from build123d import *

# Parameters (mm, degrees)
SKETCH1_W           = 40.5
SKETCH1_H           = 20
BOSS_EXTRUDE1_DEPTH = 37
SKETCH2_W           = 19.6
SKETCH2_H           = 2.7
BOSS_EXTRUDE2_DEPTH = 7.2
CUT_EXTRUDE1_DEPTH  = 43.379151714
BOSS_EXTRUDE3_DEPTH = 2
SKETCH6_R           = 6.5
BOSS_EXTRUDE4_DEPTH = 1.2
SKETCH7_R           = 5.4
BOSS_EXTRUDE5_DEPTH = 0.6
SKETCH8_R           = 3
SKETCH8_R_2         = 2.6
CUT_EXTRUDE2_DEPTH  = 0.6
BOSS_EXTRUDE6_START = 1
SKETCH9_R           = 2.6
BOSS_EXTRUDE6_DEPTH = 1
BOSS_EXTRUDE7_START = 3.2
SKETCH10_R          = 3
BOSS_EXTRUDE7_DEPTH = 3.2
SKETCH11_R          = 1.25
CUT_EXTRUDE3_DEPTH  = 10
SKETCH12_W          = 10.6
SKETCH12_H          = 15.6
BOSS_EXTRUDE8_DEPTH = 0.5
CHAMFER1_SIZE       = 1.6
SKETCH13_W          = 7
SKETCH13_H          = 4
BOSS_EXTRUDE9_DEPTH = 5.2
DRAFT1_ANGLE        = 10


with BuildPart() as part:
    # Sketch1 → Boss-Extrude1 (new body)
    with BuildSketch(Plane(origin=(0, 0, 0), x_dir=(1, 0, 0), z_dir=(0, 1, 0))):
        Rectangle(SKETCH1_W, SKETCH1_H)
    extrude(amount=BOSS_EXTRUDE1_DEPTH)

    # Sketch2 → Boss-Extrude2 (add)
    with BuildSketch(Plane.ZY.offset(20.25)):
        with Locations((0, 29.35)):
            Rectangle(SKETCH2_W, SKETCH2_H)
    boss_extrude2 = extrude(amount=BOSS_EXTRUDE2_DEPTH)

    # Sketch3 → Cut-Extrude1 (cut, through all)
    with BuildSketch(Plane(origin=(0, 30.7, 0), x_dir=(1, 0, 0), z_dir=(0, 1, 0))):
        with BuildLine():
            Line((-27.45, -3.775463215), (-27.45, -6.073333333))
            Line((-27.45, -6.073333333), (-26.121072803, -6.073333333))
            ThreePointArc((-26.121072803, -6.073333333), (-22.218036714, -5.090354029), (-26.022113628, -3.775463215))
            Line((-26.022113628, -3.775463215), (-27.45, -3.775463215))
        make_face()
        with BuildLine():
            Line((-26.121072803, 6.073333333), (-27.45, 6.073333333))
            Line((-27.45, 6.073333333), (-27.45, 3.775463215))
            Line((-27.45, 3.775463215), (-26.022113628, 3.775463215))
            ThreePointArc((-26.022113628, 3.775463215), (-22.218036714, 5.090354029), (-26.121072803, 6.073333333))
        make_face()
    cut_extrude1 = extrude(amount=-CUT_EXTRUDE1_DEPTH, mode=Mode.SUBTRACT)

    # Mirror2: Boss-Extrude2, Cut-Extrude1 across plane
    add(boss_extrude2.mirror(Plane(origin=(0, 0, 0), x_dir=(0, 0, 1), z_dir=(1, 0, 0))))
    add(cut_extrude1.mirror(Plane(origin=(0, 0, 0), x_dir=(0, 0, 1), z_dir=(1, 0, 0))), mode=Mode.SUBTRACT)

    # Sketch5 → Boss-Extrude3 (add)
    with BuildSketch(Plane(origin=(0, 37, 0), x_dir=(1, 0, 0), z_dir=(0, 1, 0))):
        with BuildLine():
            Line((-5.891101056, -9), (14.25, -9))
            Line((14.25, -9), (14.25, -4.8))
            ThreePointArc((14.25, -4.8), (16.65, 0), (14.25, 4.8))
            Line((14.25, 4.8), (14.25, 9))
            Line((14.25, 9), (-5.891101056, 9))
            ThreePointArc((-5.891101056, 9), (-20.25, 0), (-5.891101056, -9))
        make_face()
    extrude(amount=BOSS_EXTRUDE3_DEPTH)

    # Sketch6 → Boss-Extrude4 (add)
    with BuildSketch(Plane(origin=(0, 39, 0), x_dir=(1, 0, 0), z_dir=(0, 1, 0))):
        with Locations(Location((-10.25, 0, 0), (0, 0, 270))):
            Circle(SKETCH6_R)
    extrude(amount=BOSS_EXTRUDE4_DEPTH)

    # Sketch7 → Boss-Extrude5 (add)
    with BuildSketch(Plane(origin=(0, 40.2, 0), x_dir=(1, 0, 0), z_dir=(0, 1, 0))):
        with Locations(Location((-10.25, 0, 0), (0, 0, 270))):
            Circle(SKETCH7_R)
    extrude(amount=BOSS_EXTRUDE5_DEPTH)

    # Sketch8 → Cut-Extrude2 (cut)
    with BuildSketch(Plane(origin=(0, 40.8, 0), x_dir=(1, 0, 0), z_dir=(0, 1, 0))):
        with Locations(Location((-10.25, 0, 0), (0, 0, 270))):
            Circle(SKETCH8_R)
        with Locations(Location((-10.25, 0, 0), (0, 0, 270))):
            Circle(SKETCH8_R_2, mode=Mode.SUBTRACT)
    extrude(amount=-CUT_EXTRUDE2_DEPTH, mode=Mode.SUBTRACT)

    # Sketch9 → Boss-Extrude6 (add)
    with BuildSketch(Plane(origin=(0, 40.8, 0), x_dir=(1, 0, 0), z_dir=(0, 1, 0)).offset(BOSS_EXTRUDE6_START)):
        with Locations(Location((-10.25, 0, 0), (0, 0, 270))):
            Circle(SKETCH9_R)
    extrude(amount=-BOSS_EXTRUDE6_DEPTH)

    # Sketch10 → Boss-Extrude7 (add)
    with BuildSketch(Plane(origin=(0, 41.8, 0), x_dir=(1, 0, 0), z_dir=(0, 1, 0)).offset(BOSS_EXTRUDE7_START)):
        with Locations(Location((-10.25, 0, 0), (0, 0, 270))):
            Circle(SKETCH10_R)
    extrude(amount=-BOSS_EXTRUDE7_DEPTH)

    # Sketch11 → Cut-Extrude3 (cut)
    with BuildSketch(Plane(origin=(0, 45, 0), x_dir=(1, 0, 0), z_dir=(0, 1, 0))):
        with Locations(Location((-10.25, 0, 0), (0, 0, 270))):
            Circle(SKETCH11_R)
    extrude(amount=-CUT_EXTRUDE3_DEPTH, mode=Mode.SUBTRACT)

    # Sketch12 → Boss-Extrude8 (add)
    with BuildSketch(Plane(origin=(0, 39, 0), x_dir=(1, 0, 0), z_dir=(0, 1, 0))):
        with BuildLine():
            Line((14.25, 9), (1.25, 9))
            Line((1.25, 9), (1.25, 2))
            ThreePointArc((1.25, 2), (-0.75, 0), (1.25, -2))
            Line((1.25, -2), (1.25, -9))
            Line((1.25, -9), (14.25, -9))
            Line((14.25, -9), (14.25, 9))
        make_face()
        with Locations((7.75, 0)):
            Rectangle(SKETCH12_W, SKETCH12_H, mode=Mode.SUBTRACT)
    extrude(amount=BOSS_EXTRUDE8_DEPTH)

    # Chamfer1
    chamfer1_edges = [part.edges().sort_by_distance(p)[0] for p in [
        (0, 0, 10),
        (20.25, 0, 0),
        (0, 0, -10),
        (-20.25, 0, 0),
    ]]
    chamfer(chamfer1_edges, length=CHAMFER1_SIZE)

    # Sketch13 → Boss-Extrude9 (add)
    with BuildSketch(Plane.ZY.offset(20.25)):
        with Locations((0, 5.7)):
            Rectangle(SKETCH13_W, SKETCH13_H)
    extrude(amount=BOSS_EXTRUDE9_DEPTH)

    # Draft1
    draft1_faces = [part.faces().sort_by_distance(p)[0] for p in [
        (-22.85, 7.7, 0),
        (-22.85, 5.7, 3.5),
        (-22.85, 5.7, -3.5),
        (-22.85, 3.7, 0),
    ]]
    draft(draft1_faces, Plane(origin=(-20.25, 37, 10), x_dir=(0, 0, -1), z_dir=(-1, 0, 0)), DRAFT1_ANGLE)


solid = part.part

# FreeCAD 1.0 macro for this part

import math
import FreeCAD as App
import Part
import Sketcher


def edges_at(feature, points):
    """Names of the edges that pass closest to the given points."""
    edges = feature.Shape.Edges
    near = lambda p: min(range(len(edges)), key=lambda i: edges[i].distToShape(Part.Vertex(*p))[0])
    return sorted({f"Edge{near(p) + 1}" for p in points})


def faces_at(feature, points):
    """Names of the faces that lie closest to the given points."""
    faces = feature.Shape.Faces
    near = lambda p: min(range(len(faces)), key=lambda i: faces[i].distToShape(Part.Vertex(*p))[0])
    return sorted({f"Face{near(p) + 1}" for p in points})

doc = App.newDocument("Part")
params = doc.addObject("Spreadsheet::Sheet", "Params")
for row, (alias, value) in enumerate([
    ("sketch1_height", "20 mm"),
    ("sketch1_width", "40.5 mm"),
    ("pad1_length", "37 mm"),
    ("sketch2_width", "2.7 mm"),
    ("sketch2_height", "19.6 mm"),
    ("pad2_length", "7.2 mm"),
    ("sketch3_radius", "2.1 mm"),
    ("sketch4_radius", "6 mm"),
    ("sketch4_radius2", "10 mm"),
    ("sketch4_height", "4.2 mm"),
    ("pad3_length", "2 mm"),
    ("sketch5_diameter", "13 mm"),
    ("pad4_length", "1.2 mm"),
    ("sketch6_diameter", "10.8 mm"),
    ("pad5_length", "0.6 mm"),
    ("sketch7_diameter", "6 mm"),
    ("sketch7_diameter2", "5.2 mm"),
    ("pocket2_length", "0.6 mm"),
    ("sketch8_diameter", "5.2 mm"),
    ("pad6_length", "1 mm"),
    ("sketch9_diameter", "6 mm"),
    ("pad7_length", "3.2 mm"),
    ("sketch10_diameter", "2.5 mm"),
    ("pocket3_length", "10 mm"),
    ("sketch11_radius", "2 mm"),
    ("sketch11_width", "13 mm"),
    ("sketch11_height", "7 mm"),
    ("sketch11_width2", "10.6 mm"),
    ("sketch11_height2", "15.6 mm"),
    ("pad8_length", "0.5 mm"),
    ("chamfer_size", "1.6 mm"),
    ("sketch12_width", "4 mm"),
    ("sketch12_height", "7 mm"),
    ("pad9_length", "5.2 mm"),
    ("draft_angle", "10 deg"),
], start=1):
    params.set(f"A{row}", alias)
    params.set(f"B{row}", "=" + value)
    params.setAlias(f"B{row}", alias)

body = doc.addObject("PartDesign::Body", "Body")

# Sketch on XZ plane
sketch1 = body.newObject("Sketcher::SketchObject", "Sketch")
sketch1.AttachmentSupport = (doc.getObject("XZ_Plane"), [""])
sketch1.MapMode = "FlatFace"
sketch1.addGeometry([
    Part.LineSegment(App.Vector(-20, -10, 0), App.Vector(-20, 10, 0)),
    Part.LineSegment(App.Vector(-20, 10, 0), App.Vector(20, 10, 0)),
    Part.LineSegment(App.Vector(20, 10, 0), App.Vector(20, -10, 0)),
    Part.LineSegment(App.Vector(20, -10, 0), App.Vector(-20, -10, 0)),
], False)
sketch1.addConstraint([
    Sketcher.Constraint("Coincident", 0, 2, 1, 1),
    Sketcher.Constraint("Coincident", 1, 2, 2, 1),
    Sketcher.Constraint("Coincident", 2, 2, 3, 1),
    Sketcher.Constraint("Coincident", 3, 2, 0, 1),
    Sketcher.Constraint("Vertical", 0),
    Sketcher.Constraint("Horizontal", 1),
    Sketcher.Constraint("Vertical", 2),
    Sketcher.Constraint("Horizontal", 3),
    Sketcher.Constraint("Symmetric", 0, 2, 2, 2, -1, 1),
    Sketcher.Constraint("DistanceY", 0, 1, 0, 2, 20.0),
    Sketcher.Constraint("DistanceX", 1, 1, 1, 2, 40.5),
])
sketch1.setExpression("Constraints[9]", "Params.sketch1_height")
sketch1.setExpression("Constraints[10]", "Params.sketch1_width")
pad1 = body.newObject("PartDesign::Pad", "Pad")
pad1.Profile = sketch1
pad1.setExpression("Length", "Params.pad1_length")
pad1.Reversed = True

# Sketch on YZ plane
sketch2 = body.newObject("Sketcher::SketchObject", "Sketch001")
sketch2.AttachmentSupport = (doc.getObject("YZ_Plane"), [""])
sketch2.MapMode = "FlatFace"
sketch2.AttachmentOffset = App.Placement(App.Vector(0, 0, -20.25), App.Rotation())
sketch2.addGeometry([
    Part.LineSegment(App.Vector(30.7, -9.8, 0), App.Vector(28, -9.8, 0)),
    Part.LineSegment(App.Vector(28, -9.8, 0), App.Vector(28, 9.8, 0)),
    Part.LineSegment(App.Vector(28, 9.8, 0), App.Vector(30.7, 9.8, 0)),
    Part.LineSegment(App.Vector(30.7, 9.8, 0), App.Vector(30.7, -9.8, 0)),
], False)
sketch2.addConstraint([
    Sketcher.Constraint("Coincident", 0, 2, 1, 1),
    Sketcher.Constraint("Coincident", 1, 2, 2, 1),
    Sketcher.Constraint("Coincident", 2, 2, 3, 1),
    Sketcher.Constraint("Coincident", 3, 2, 0, 1),
    Sketcher.Constraint("Horizontal", 0),
    Sketcher.Constraint("Vertical", 1),
    Sketcher.Constraint("Horizontal", 2),
    Sketcher.Constraint("Vertical", 3),
    Sketcher.Constraint("DistanceX", 0, 2, 0, 1, 2.7),
    Sketcher.Constraint("DistanceY", 1, 1, 1, 2, 19.6),
    Sketcher.Constraint("DistanceX", -1, 1, 0, 2, 28.0),
    Sketcher.Constraint("DistanceY", 0, 2, -1, 1, 9.8),
])
sketch2.setExpression("Constraints[8]", "Params.sketch2_width")
sketch2.setExpression("Constraints[9]", "Params.sketch2_height")
pad2 = body.newObject("PartDesign::Pad", "Pad001")
pad2.Profile = sketch2
pad2.setExpression("Length", "Params.pad2_length")
pad2.Reversed = True

# Sketch on XZ plane
sketch3 = body.newObject("Sketcher::SketchObject", "Sketch002")
sketch3.AttachmentSupport = (doc.getObject("XZ_Plane"), [""])
sketch3.MapMode = "FlatFace"
sketch3.AttachmentOffset = App.Placement(App.Vector(0, 0, -30.7), App.Rotation())
sketch3.addGeometry([
    Part.LineSegment(App.Vector(-27.4, 3.8, 0), App.Vector(-27.4, 6.1, 0)),  # 0
    Part.LineSegment(App.Vector(-27.4, 6.1, 0), App.Vector(-26.1, 6.1, 0)),  # 1
    Part.ArcOfCircle(Part.Circle(App.Vector(-24.3, 5, 0), App.Vector(0, 0, 1), 2.1), math.radians(-144), math.radians(149)),  # 2
    Part.LineSegment(App.Vector(-26, 3.8, 0), App.Vector(-27.4, 3.8, 0)),  # 3
    Part.LineSegment(App.Vector(-26.1, -6.1, 0), App.Vector(-27.4, -6.1, 0)),  # 4
    Part.LineSegment(App.Vector(-27.4, -6.1, 0), App.Vector(-27.4, -3.8, 0)),  # 5
    Part.LineSegment(App.Vector(-27.4, -3.8, 0), App.Vector(-26, -3.8, 0)),  # 6
    Part.ArcOfCircle(Part.Circle(App.Vector(-24.3, -5, 0), App.Vector(0, 0, 1), 2.1), math.radians(-149), math.radians(144)),  # 7
], False)
sketch3.addConstraint([
    Sketcher.Constraint("Coincident", 0, 2, 1, 1),
    Sketcher.Constraint("Coincident", 1, 2, 2, 2),
    Sketcher.Constraint("Coincident", 2, 1, 3, 1),
    Sketcher.Constraint("Coincident", 3, 2, 0, 1),
    Sketcher.Constraint("Coincident", 4, 2, 5, 1),
    Sketcher.Constraint("Coincident", 5, 2, 6, 1),
    Sketcher.Constraint("Coincident", 6, 2, 7, 2),
    Sketcher.Constraint("Coincident", 7, 1, 4, 1),
    Sketcher.Constraint("Vertical", 0),
    Sketcher.Constraint("Horizontal", 1),
    Sketcher.Constraint("Horizontal", 3),
    Sketcher.Constraint("Horizontal", 4),
    Sketcher.Constraint("Vertical", 5),
    Sketcher.Constraint("Horizontal", 6),
    Sketcher.Constraint("Equal", 2, 7),
    Sketcher.Constraint("Symmetric", 2, 3, 7, 3, -1),
    Sketcher.Constraint("Symmetric", 0, 2, 4, 2, -1),
    Sketcher.Constraint("Vertical", 2, 1, 6, 2),
    Sketcher.Constraint("Radius", 2, 2.1),
    Sketcher.Constraint("DistanceY", -1, 1, 2, 3, 5.0),
    Sketcher.Constraint("DistanceX", 0, 2, -1, 1, 27.45),
    Sketcher.Constraint("DistanceY", 0, 1, 0, 2, 2.29787),
    Sketcher.Constraint("DistanceX", 1, 1, 1, 2, 1.328927),
    Sketcher.Constraint("DistanceX", 3, 2, 3, 1, 1.427886),
])
sketch3.setExpression("Constraints[18]", "Params.sketch3_radius")
pocket1 = body.newObject("PartDesign::Pocket", "Pocket")
pocket1.Profile = sketch3
pocket1.Type = "ThroughAll"
pocket1.Reversed = True
doc.recompute()

mirrored = body.newObject("PartDesign::Mirrored", "Mirrored")
mirrored.Originals = [pad2, pocket1]
mirrored.MirrorPlane = (doc.getObject("YZ_Plane"), [""])
body.Tip = mirrored

# Sketch on XZ plane
sketch4 = body.newObject("Sketcher::SketchObject", "Sketch003")
sketch4.AttachmentSupport = (doc.getObject("XZ_Plane"), [""])
sketch4.MapMode = "FlatFace"
sketch4.AttachmentOffset = App.Placement(App.Vector(0, 0, -37), App.Rotation())
sketch4.addGeometry([
    Part.LineSegment(App.Vector(-5.9, 9, 0), App.Vector(14.2, 9, 0)),  # 0
    Part.LineSegment(App.Vector(14.2, 9, 0), App.Vector(14.2, 4.8, 0)),  # 1
    Part.ArcOfCircle(Part.Circle(App.Vector(10.7, 0, 0), App.Vector(0, 0, 1), 6), math.radians(-53), math.radians(53)),  # 2
    Part.LineSegment(App.Vector(14.2, -4.8, 0), App.Vector(14.2, -9, 0)),  # 3
    Part.LineSegment(App.Vector(14.2, -9, 0), App.Vector(-5.9, -9, 0)),  # 4
    Part.ArcOfCircle(Part.Circle(App.Vector(-10.2, 0, 0), App.Vector(0, 0, 1), 10), math.radians(64), math.radians(296)),  # 5
], False)
sketch4.addConstraint([
    Sketcher.Constraint("Coincident", 0, 2, 1, 1),
    Sketcher.Constraint("Coincident", 1, 2, 2, 2),
    Sketcher.Constraint("Coincident", 2, 1, 3, 1),
    Sketcher.Constraint("Coincident", 3, 2, 4, 1),
    Sketcher.Constraint("Coincident", 4, 2, 5, 2),
    Sketcher.Constraint("Coincident", 5, 1, 0, 1),
    Sketcher.Constraint("Horizontal", 0),
    Sketcher.Constraint("Vertical", 1),
    Sketcher.Constraint("Vertical", 3),
    Sketcher.Constraint("Horizontal", 4),
    Sketcher.Constraint("Symmetric", 1, 2, 2, 1, -1),
    Sketcher.Constraint("Symmetric", 4, 2, 5, 1, -1),
    Sketcher.Constraint("Radius", 2, 6.0),
    Sketcher.Constraint("Radius", 5, 10.0),
    Sketcher.Constraint("DistanceY", 1, 2, 1, 1, 4.2),
    Sketcher.Constraint("DistanceY", -1, 1, 0, 2, 9.0),
    Sketcher.Constraint("DistanceX", 5, 3, 2, 3, 20.9),
    Sketcher.Constraint("DistanceX", -1, 1, 2, 3, 10.65),
])
sketch4.setExpression("Constraints[12]", "Params.sketch4_radius")
sketch4.setExpression("Constraints[13]", "Params.sketch4_radius2")
sketch4.setExpression("Constraints[14]", "Params.sketch4_height")
pad3 = body.newObject("PartDesign::Pad", "Pad002")
pad3.Profile = sketch4
pad3.setExpression("Length", "Params.pad3_length")
pad3.Reversed = True

# Sketch on XZ plane
sketch5 = body.newObject("Sketcher::SketchObject", "Sketch004")
sketch5.AttachmentSupport = (doc.getObject("XZ_Plane"), [""])
sketch5.MapMode = "FlatFace"
sketch5.AttachmentOffset = App.Placement(App.Vector(0, 0, -39), App.Rotation())
sketch5.addGeometry(Part.Circle(App.Vector(-10, 0, 0), App.Vector(0, 0, 1), 6), False)
sketch5.addConstraint([
    Sketcher.Constraint("PointOnObject", 0, 3, -1),
    Sketcher.Constraint("Diameter", 0, 13.0),
    Sketcher.Constraint("DistanceX", 0, 3, -1, 1, 10.25),
])
sketch5.setExpression("Constraints[1]", "Params.sketch5_diameter")
pad4 = body.newObject("PartDesign::Pad", "Pad003")
pad4.Profile = sketch5
pad4.setExpression("Length", "Params.pad4_length")
pad4.Reversed = True

# Sketch on XZ plane
sketch6 = body.newObject("Sketcher::SketchObject", "Sketch005")
sketch6.AttachmentSupport = (doc.getObject("XZ_Plane"), [""])
sketch6.MapMode = "FlatFace"
sketch6.AttachmentOffset = App.Placement(App.Vector(0, 0, -40.2), App.Rotation())
sketch6.addGeometry(Part.Circle(App.Vector(-10, 0, 0), App.Vector(0, 0, 1), 5), False)
sketch6.addConstraint([
    Sketcher.Constraint("PointOnObject", 0, 3, -1),
    Sketcher.Constraint("Diameter", 0, 10.8),
    Sketcher.Constraint("DistanceX", 0, 3, -1, 1, 10.25),
])
sketch6.setExpression("Constraints[1]", "Params.sketch6_diameter")
pad5 = body.newObject("PartDesign::Pad", "Pad004")
pad5.Profile = sketch6
pad5.setExpression("Length", "Params.pad5_length")
pad5.Reversed = True

# Sketch on XZ plane
sketch7 = body.newObject("Sketcher::SketchObject", "Sketch006")
sketch7.AttachmentSupport = (doc.getObject("XZ_Plane"), [""])
sketch7.MapMode = "FlatFace"
sketch7.AttachmentOffset = App.Placement(App.Vector(0, 0, -40.8), App.Rotation())
sketch7.addGeometry([
    Part.Circle(App.Vector(-10.2, 0, 0), App.Vector(0, 0, 1), 3),
    Part.Circle(App.Vector(-10.2, 0, 0), App.Vector(0, 0, 1), 2.6),
], False)
sketch7.addConstraint([
    Sketcher.Constraint("Coincident", 1, 3, 0, 3),
    Sketcher.Constraint("PointOnObject", 0, 3, -1),
    Sketcher.Constraint("Diameter", 0, 6.0),
    Sketcher.Constraint("Diameter", 1, 5.2),
    Sketcher.Constraint("DistanceX", 0, 3, -1, 1, 10.25),
])
sketch7.setExpression("Constraints[2]", "Params.sketch7_diameter")
sketch7.setExpression("Constraints[3]", "Params.sketch7_diameter2")
pocket2 = body.newObject("PartDesign::Pocket", "Pocket001")
pocket2.Profile = sketch7
pocket2.setExpression("Length", "Params.pocket2_length")
pocket2.Reversed = True

# Sketch on XZ plane
sketch8 = body.newObject("Sketcher::SketchObject", "Sketch007")
sketch8.AttachmentSupport = (doc.getObject("XZ_Plane"), [""])
sketch8.MapMode = "FlatFace"
sketch8.AttachmentOffset = App.Placement(App.Vector(0, 0, -41.8), App.Rotation())
sketch8.addGeometry(Part.Circle(App.Vector(-10.2, 0, 0), App.Vector(0, 0, 1), 2.6), False)
sketch8.addConstraint([
    Sketcher.Constraint("PointOnObject", 0, 3, -1),
    Sketcher.Constraint("Diameter", 0, 5.2),
    Sketcher.Constraint("DistanceX", 0, 3, -1, 1, 10.25),
])
sketch8.setExpression("Constraints[1]", "Params.sketch8_diameter")
pad6 = body.newObject("PartDesign::Pad", "Pad005")
pad6.Profile = sketch8
pad6.setExpression("Length", "Params.pad6_length")

# Sketch on XZ plane
sketch9 = body.newObject("Sketcher::SketchObject", "Sketch008")
sketch9.AttachmentSupport = (doc.getObject("XZ_Plane"), [""])
sketch9.MapMode = "FlatFace"
sketch9.AttachmentOffset = App.Placement(App.Vector(0, 0, -45), App.Rotation())
sketch9.addGeometry(Part.Circle(App.Vector(-10.2, 0, 0), App.Vector(0, 0, 1), 3), False)
sketch9.addConstraint([
    Sketcher.Constraint("PointOnObject", 0, 3, -1),
    Sketcher.Constraint("Diameter", 0, 6.0),
    Sketcher.Constraint("DistanceX", 0, 3, -1, 1, 10.25),
])
sketch9.setExpression("Constraints[1]", "Params.sketch9_diameter")
pad7 = body.newObject("PartDesign::Pad", "Pad006")
pad7.Profile = sketch9
pad7.setExpression("Length", "Params.pad7_length")

# Sketch on XZ plane
sketch10 = body.newObject("Sketcher::SketchObject", "Sketch009")
sketch10.AttachmentSupport = (doc.getObject("XZ_Plane"), [""])
sketch10.MapMode = "FlatFace"
sketch10.AttachmentOffset = App.Placement(App.Vector(0, 0, -45), App.Rotation())
sketch10.addGeometry(Part.Circle(App.Vector(-10.2, 0, 0), App.Vector(0, 0, 1), 1.2), False)
sketch10.addConstraint([
    Sketcher.Constraint("PointOnObject", 0, 3, -1),
    Sketcher.Constraint("Diameter", 0, 2.5),
    Sketcher.Constraint("DistanceX", 0, 3, -1, 1, 10.25),
])
sketch10.setExpression("Constraints[1]", "Params.sketch10_diameter")
pocket3 = body.newObject("PartDesign::Pocket", "Pocket002")
pocket3.Profile = sketch10
pocket3.setExpression("Length", "Params.pocket3_length")
pocket3.Reversed = True

# Sketch on XZ plane
sketch11 = body.newObject("Sketcher::SketchObject", "Sketch010")
sketch11.AttachmentSupport = (doc.getObject("XZ_Plane"), [""])
sketch11.MapMode = "FlatFace"
sketch11.AttachmentOffset = App.Placement(App.Vector(0, 0, -39), App.Rotation())
sketch11.addGeometry([
    Part.LineSegment(App.Vector(14.2, -9, 0), App.Vector(1.2, -9, 0)),  # 0
    Part.LineSegment(App.Vector(1.2, -9, 0), App.Vector(1.2, -2, 0)),  # 1
    Part.ArcOfCircle(Part.Circle(App.Vector(1.2, 0, 0), App.Vector(0, 0, 1), 2), math.radians(90), math.radians(270)),  # 2
    Part.LineSegment(App.Vector(1.2, 2, 0), App.Vector(1.2, 9, 0)),  # 3
    Part.LineSegment(App.Vector(1.2, 9, 0), App.Vector(14.2, 9, 0)),  # 4
    Part.LineSegment(App.Vector(14.2, 9, 0), App.Vector(14.2, -9, 0)),  # 5
    Part.LineSegment(App.Vector(13.1, 7.8, 0), App.Vector(2.5, 7.8, 0)),  # 6
    Part.LineSegment(App.Vector(2.5, 7.8, 0), App.Vector(2.5, -7.8, 0)),  # 7
    Part.LineSegment(App.Vector(2.5, -7.8, 0), App.Vector(13.1, -7.8, 0)),  # 8
    Part.LineSegment(App.Vector(13.1, -7.8, 0), App.Vector(13.1, 7.8, 0)),  # 9
], False)
sketch11.addConstraint([
    Sketcher.Constraint("Coincident", 0, 2, 1, 1),
    Sketcher.Constraint("Coincident", 1, 2, 2, 2),
    Sketcher.Constraint("Coincident", 2, 1, 3, 1),
    Sketcher.Constraint("Coincident", 3, 2, 4, 1),
    Sketcher.Constraint("Coincident", 4, 2, 5, 1),
    Sketcher.Constraint("Coincident", 5, 2, 0, 1),
    Sketcher.Constraint("Coincident", 6, 2, 7, 1),
    Sketcher.Constraint("Coincident", 7, 2, 8, 1),
    Sketcher.Constraint("Coincident", 8, 2, 9, 1),
    Sketcher.Constraint("Coincident", 9, 2, 6, 1),
    Sketcher.Constraint("Horizontal", 0),
    Sketcher.Constraint("Vertical", 1),
    Sketcher.Constraint("Vertical", 3),
    Sketcher.Constraint("Horizontal", 4),
    Sketcher.Constraint("Vertical", 5),
    Sketcher.Constraint("Horizontal", 6),
    Sketcher.Constraint("Vertical", 7),
    Sketcher.Constraint("Horizontal", 8),
    Sketcher.Constraint("Vertical", 9),
    Sketcher.Constraint("Symmetric", 1, 2, 2, 1, -1),
    Sketcher.Constraint("Vertical", 2, 3, 0, 2),
    Sketcher.Constraint("Equal", 1, 3),
    Sketcher.Constraint("Radius", 2, 2.0),
    Sketcher.Constraint("DistanceX", 0, 2, 0, 1, 13.0),
    Sketcher.Constraint("DistanceY", 1, 1, 1, 2, 7.0),
    Sketcher.Constraint("DistanceX", 6, 2, 6, 1, 10.6),
    Sketcher.Constraint("DistanceY", 7, 2, 7, 1, 15.6),
    Sketcher.Constraint("DistanceY", -1, 1, 6, 2, 7.8),
    Sketcher.Constraint("DistanceX", 3, 2, 6, 2, 1.2),
    Sketcher.Constraint("DistanceX", -1, 1, 2, 3, 1.25),
])
sketch11.setExpression("Constraints[22]", "Params.sketch11_radius")
sketch11.setExpression("Constraints[23]", "Params.sketch11_width")
sketch11.setExpression("Constraints[24]", "Params.sketch11_height")
sketch11.setExpression("Constraints[25]", "Params.sketch11_width2")
sketch11.setExpression("Constraints[26]", "Params.sketch11_height2")
pad8 = body.newObject("PartDesign::Pad", "Pad007")
pad8.Profile = sketch11
pad8.setExpression("Length", "Params.pad8_length")
pad8.Reversed = True
doc.recompute()

chamfer = body.newObject("PartDesign::Chamfer", "Chamfer")
chamfer.Base = (pad8, edges_at(pad8, [
    (0, 0, 10),
    (20.25, 0, 0),
    (0, 0, -10),
    (-20.25, 0, 0),
]))
chamfer.setExpression("Size", "Params.chamfer_size")

# Sketch on YZ plane
sketch12 = body.newObject("Sketcher::SketchObject", "Sketch011")
sketch12.AttachmentSupport = (doc.getObject("YZ_Plane"), [""])
sketch12.MapMode = "FlatFace"
sketch12.AttachmentOffset = App.Placement(App.Vector(0, 0, -20.25), App.Rotation())
sketch12.addGeometry([
    Part.LineSegment(App.Vector(7.7, -3.5, 0), App.Vector(3.7, -3.5, 0)),
    Part.LineSegment(App.Vector(3.7, -3.5, 0), App.Vector(3.7, 3.5, 0)),
    Part.LineSegment(App.Vector(3.7, 3.5, 0), App.Vector(7.7, 3.5, 0)),
    Part.LineSegment(App.Vector(7.7, 3.5, 0), App.Vector(7.7, -3.5, 0)),
], False)
sketch12.addConstraint([
    Sketcher.Constraint("Coincident", 0, 2, 1, 1),
    Sketcher.Constraint("Coincident", 1, 2, 2, 1),
    Sketcher.Constraint("Coincident", 2, 2, 3, 1),
    Sketcher.Constraint("Coincident", 3, 2, 0, 1),
    Sketcher.Constraint("Horizontal", 0),
    Sketcher.Constraint("Vertical", 1),
    Sketcher.Constraint("Horizontal", 2),
    Sketcher.Constraint("Vertical", 3),
    Sketcher.Constraint("DistanceX", 0, 2, 0, 1, 4.0),
    Sketcher.Constraint("DistanceY", 1, 1, 1, 2, 7.0),
    Sketcher.Constraint("DistanceX", -1, 1, 0, 2, 3.7),
    Sketcher.Constraint("DistanceY", 0, 2, -1, 1, 3.5),
])
sketch12.setExpression("Constraints[8]", "Params.sketch12_width")
sketch12.setExpression("Constraints[9]", "Params.sketch12_height")
pad9 = body.newObject("PartDesign::Pad", "Pad008")
pad9.Profile = sketch12
pad9.setExpression("Length", "Params.pad9_length")
pad9.Reversed = True
doc.recompute()

datumplane = body.newObject("PartDesign::Plane", "DatumPlane")
datumplane.AttachmentSupport = (doc.getObject("YZ_Plane"), [""])
datumplane.MapMode = "FlatFace"
datumplane.AttachmentOffset = App.Placement(App.Vector(0, 0, -20.25), App.Rotation())
draft = body.newObject("PartDesign::Draft", "Draft")
draft.Base = (pad9, faces_at(pad9, [
    (-22.85, 7.7, 0),
    (-22.85, 5.7, 3.5),
    (-22.85, 5.7, -3.5),
    (-22.85, 3.7, 0),
]))
draft.NeutralPlane = (datumplane, [""])
draft.setExpression("Angle", "Params.draft_angle")
draft.Reversed = True

doc.recompute()
